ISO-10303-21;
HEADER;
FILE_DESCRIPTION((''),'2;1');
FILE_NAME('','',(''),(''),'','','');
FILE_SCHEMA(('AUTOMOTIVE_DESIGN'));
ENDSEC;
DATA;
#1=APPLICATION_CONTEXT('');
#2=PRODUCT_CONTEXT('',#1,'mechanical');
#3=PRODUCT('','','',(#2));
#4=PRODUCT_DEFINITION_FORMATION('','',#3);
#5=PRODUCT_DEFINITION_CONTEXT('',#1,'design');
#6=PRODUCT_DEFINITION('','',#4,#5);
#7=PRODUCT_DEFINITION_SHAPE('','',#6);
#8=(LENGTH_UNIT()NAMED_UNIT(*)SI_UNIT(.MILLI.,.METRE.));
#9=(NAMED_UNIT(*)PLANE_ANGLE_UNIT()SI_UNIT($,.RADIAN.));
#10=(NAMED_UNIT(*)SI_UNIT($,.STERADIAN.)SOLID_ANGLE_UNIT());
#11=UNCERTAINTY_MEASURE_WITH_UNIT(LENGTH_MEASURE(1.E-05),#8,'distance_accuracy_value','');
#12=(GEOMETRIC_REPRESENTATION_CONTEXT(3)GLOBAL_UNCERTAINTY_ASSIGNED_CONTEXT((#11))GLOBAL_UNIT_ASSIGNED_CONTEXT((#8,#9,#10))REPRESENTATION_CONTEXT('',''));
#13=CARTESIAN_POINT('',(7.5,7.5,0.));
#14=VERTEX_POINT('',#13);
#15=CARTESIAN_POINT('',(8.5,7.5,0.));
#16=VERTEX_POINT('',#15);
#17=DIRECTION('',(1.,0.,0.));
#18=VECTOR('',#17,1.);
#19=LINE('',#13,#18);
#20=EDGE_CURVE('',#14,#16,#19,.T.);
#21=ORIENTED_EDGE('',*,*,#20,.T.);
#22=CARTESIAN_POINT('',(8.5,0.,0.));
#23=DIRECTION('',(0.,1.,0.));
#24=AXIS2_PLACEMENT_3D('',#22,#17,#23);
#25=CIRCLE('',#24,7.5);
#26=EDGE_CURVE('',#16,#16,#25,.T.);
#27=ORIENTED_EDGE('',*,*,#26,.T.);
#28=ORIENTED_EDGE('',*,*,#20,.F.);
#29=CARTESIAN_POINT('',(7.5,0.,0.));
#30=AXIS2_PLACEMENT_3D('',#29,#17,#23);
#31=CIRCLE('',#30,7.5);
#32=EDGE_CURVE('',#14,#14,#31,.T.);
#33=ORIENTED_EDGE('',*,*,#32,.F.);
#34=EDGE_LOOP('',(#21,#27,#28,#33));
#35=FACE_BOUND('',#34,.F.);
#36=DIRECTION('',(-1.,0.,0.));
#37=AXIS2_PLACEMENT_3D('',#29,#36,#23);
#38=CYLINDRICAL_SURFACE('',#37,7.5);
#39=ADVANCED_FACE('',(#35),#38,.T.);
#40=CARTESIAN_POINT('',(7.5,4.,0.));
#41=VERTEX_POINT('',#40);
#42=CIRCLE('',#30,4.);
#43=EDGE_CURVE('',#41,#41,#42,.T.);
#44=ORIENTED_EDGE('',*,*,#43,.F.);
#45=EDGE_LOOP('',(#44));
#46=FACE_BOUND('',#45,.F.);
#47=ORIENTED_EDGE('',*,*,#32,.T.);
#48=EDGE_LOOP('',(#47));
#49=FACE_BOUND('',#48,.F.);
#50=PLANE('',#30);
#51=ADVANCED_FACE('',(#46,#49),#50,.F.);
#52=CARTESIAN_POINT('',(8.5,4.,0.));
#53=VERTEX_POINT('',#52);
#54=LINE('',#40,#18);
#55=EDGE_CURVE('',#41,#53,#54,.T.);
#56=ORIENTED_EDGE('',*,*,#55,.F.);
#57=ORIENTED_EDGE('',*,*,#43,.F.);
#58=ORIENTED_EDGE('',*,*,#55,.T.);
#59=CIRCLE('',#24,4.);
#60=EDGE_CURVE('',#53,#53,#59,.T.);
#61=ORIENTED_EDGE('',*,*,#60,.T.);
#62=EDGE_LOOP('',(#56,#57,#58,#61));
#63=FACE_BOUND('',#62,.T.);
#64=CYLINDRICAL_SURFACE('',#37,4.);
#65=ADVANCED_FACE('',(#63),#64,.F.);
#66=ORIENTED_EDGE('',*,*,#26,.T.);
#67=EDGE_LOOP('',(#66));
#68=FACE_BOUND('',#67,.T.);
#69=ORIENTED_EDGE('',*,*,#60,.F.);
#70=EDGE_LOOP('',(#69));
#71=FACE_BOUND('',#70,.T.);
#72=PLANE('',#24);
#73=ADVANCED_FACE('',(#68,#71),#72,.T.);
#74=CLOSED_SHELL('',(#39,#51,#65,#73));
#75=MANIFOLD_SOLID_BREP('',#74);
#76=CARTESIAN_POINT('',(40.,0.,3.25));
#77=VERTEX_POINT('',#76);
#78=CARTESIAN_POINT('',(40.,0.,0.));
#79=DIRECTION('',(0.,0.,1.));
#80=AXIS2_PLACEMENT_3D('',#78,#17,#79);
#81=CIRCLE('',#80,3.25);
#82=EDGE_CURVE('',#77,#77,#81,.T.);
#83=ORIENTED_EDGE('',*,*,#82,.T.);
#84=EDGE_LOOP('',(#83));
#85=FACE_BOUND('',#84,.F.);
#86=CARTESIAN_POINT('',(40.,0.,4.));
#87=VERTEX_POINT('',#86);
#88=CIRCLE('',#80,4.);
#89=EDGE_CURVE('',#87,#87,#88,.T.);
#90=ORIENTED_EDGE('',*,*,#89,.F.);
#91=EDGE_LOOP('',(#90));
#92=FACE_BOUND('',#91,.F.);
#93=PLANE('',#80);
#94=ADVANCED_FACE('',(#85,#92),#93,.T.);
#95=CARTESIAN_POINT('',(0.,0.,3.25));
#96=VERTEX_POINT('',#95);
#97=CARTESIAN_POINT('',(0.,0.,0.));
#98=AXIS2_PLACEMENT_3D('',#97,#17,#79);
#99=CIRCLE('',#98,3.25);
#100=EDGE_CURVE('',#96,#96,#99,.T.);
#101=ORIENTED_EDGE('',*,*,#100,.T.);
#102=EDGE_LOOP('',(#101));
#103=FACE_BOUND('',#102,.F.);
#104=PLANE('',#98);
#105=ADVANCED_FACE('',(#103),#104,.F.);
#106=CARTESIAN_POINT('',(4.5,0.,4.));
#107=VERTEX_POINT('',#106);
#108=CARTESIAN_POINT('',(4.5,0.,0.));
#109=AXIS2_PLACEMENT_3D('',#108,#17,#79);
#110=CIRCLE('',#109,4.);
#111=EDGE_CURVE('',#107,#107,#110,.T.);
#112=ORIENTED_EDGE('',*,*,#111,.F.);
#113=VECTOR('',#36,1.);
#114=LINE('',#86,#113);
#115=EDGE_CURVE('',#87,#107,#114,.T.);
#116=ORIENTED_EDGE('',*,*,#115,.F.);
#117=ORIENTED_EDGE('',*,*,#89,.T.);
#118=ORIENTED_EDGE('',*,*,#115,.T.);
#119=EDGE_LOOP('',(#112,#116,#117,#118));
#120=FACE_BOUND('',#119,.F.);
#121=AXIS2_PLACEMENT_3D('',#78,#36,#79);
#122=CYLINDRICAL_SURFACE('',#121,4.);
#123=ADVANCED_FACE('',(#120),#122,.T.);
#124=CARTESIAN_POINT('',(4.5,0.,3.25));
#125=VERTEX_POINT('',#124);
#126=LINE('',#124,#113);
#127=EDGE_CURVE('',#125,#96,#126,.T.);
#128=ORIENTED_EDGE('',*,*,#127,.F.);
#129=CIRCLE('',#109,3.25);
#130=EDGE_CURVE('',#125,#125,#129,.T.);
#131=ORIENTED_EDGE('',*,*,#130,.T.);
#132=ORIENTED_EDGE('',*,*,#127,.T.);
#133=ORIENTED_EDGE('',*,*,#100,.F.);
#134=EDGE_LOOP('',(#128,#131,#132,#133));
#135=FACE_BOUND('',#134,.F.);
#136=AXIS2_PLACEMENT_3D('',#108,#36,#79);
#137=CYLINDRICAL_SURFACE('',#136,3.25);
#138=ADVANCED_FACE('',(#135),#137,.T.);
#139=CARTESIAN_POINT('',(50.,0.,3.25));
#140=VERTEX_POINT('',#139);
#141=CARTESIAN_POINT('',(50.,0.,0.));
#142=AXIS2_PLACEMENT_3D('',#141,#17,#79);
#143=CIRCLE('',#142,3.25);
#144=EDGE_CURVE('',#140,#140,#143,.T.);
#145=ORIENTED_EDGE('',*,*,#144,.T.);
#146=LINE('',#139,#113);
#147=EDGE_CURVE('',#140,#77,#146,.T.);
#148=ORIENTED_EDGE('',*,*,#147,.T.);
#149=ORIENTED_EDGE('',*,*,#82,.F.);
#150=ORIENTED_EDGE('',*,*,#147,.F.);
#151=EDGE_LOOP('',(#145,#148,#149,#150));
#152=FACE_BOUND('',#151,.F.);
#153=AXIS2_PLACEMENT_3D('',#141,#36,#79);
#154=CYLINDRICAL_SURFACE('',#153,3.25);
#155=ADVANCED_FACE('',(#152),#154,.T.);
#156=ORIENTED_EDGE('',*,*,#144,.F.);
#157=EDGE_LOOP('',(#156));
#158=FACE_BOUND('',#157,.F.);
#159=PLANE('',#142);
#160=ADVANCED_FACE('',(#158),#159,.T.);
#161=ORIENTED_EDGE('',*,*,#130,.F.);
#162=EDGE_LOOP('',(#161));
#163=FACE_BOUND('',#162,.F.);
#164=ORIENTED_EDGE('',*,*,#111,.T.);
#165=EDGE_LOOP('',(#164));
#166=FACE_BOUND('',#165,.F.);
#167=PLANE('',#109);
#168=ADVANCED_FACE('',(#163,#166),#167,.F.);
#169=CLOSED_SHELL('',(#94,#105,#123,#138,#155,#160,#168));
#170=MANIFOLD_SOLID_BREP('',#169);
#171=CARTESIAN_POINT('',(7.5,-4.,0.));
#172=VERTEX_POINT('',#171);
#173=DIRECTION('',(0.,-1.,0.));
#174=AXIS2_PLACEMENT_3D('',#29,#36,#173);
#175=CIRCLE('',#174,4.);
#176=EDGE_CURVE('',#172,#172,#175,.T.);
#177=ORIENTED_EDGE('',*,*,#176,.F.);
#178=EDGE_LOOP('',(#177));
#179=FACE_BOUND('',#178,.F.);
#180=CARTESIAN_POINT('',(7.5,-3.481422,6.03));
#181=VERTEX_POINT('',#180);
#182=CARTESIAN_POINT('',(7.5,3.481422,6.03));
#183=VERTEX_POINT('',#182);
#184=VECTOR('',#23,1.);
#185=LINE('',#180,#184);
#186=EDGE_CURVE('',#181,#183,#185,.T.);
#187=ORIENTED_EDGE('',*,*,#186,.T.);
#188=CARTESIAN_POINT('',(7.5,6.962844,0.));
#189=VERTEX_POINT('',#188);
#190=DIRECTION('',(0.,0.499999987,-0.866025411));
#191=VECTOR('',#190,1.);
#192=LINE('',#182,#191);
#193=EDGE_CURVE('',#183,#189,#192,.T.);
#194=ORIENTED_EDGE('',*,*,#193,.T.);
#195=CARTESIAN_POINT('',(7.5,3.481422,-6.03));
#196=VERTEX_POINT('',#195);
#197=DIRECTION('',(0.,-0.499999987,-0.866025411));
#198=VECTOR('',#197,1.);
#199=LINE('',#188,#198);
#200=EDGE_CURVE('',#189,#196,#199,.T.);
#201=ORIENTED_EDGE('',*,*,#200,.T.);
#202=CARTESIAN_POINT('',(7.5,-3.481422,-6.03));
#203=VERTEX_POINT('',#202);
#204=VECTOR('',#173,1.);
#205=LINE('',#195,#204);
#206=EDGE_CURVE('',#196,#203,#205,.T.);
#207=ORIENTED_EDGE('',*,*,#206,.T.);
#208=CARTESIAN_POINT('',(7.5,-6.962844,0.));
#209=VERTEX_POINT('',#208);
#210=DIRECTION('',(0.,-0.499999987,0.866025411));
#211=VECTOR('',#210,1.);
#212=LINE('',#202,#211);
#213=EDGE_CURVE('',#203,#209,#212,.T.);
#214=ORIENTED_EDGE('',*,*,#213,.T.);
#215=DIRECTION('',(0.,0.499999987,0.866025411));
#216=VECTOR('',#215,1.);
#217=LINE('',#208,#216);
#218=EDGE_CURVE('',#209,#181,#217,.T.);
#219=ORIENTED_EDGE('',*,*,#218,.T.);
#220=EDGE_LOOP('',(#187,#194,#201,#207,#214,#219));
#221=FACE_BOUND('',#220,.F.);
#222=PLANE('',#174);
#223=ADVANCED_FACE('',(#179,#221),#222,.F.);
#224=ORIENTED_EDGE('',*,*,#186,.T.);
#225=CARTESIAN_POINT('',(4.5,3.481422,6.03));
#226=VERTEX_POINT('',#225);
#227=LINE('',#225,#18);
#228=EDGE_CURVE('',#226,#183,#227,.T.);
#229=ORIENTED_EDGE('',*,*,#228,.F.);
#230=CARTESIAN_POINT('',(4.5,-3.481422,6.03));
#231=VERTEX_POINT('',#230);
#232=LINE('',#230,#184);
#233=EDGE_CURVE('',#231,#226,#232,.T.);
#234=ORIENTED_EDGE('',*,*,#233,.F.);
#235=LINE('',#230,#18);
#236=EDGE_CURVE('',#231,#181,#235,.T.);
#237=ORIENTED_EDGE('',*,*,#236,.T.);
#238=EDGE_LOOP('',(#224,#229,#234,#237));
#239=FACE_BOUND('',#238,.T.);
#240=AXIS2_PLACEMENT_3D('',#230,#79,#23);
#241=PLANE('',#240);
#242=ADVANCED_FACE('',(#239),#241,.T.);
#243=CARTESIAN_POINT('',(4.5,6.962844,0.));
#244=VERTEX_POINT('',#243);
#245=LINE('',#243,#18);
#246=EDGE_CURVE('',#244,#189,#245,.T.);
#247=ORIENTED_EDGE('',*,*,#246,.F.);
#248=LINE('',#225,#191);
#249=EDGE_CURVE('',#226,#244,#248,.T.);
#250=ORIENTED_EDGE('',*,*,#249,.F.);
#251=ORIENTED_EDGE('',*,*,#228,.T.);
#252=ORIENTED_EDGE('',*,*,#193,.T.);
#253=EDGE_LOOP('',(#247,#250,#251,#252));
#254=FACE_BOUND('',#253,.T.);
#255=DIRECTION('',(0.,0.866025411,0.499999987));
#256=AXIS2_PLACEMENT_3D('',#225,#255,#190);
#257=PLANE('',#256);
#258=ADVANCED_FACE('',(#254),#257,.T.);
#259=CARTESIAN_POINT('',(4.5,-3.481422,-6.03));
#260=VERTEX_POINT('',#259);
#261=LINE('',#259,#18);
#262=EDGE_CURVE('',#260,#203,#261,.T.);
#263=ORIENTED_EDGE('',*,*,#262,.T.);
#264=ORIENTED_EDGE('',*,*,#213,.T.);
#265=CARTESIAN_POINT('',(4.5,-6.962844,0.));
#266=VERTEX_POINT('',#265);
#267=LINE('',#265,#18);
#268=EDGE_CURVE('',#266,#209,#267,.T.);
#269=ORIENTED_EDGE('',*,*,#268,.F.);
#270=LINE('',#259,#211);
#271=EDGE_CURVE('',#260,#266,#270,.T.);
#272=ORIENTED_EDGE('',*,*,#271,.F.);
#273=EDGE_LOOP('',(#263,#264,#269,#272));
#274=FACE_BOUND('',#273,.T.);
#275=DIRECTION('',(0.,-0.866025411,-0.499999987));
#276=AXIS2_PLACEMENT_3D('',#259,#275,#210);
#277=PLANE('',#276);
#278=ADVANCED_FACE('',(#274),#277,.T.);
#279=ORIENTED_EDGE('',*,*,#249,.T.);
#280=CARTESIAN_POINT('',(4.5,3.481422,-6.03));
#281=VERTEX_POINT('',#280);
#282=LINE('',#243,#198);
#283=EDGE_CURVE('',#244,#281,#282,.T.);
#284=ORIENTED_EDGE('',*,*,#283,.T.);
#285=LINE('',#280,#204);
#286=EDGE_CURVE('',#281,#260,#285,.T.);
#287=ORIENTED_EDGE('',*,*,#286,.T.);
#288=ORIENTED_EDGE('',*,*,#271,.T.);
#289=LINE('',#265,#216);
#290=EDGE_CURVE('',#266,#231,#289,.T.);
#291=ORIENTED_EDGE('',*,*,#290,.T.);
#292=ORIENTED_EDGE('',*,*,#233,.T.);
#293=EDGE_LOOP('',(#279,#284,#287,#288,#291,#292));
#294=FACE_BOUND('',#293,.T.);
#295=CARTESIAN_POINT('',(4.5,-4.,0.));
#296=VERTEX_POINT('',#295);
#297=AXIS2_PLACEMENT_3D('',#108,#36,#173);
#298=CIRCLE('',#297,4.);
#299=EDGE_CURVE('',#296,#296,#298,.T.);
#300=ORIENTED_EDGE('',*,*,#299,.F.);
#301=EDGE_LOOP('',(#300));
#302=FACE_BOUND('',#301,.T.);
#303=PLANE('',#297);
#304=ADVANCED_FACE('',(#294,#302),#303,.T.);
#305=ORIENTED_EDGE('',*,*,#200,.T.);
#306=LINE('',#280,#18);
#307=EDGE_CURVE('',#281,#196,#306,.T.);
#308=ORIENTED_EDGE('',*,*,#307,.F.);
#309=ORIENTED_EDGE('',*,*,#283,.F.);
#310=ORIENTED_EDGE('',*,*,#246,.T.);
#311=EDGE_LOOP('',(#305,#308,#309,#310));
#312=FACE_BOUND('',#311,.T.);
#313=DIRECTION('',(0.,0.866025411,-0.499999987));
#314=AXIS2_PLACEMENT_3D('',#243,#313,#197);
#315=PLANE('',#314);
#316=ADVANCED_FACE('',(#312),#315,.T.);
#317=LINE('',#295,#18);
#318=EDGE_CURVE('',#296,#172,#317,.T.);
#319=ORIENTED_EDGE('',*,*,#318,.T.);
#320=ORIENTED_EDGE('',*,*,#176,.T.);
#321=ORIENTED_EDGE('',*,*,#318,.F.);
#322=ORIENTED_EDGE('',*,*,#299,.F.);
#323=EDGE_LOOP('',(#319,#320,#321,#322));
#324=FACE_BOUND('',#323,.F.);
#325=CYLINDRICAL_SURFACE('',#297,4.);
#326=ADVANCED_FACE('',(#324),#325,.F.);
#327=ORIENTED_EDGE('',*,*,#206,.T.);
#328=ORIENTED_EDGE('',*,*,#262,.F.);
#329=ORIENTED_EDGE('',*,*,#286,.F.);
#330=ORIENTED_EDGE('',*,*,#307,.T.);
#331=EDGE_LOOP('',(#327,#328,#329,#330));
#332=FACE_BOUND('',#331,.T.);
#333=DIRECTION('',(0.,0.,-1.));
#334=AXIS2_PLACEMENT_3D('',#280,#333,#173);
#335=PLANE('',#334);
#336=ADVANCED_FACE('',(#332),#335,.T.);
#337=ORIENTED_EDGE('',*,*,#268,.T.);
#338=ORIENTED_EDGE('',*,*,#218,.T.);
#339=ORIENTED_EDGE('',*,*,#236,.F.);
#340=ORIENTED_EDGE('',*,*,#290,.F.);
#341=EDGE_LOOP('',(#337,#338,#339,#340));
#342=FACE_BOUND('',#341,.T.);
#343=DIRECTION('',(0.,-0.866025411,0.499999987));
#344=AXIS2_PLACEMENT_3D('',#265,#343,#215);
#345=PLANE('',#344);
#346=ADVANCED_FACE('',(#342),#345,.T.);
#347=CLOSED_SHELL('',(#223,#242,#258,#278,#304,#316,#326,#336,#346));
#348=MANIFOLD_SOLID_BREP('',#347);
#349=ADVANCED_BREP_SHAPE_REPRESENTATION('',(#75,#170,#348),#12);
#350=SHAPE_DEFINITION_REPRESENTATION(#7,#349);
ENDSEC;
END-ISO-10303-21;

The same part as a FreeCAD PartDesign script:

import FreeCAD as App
import Part
import Sketcher
from FreeCAD import Vector
Q = App.Units.Quantity

doc = App.newDocument("Part")
body = doc.addObject("PartDesign::Body", "Body")

# Sketch on XZ plane
sketch1 = body.newObject("Sketcher::SketchObject", "Sketch")
sketch1.AttachmentSupport = (doc.getObject("XZ_Plane"), [""])
sketch1.MapMode = "FlatFace"
sketch1.addGeometry([
    Part.LineSegment(Vector(0, 3.2, 0), Vector(0, 0, 0)),  # 0
    Part.LineSegment(Vector(0, 0, 0), Vector(50, 0, 0)),  # 1
    Part.LineSegment(Vector(50, 0, 0), Vector(50, 3.2, 0)),  # 2
    Part.LineSegment(Vector(50, 3.2, 0), Vector(40, 3.2, 0)),  # 3
    Part.LineSegment(Vector(40, 3.2, 0), Vector(40, 4, 0)),  # 4
    Part.LineSegment(Vector(40, 4, 0), Vector(4.5, 4, 0)),  # 5
    Part.LineSegment(Vector(4.5, 4, 0), Vector(4.5, 3.2, 0)),  # 6
    Part.LineSegment(Vector(4.5, 3.2, 0), Vector(0, 3.2, 0)),  # 7
], False)
sketch1.addConstraint([
    Sketcher.Constraint("Coincident", 0, 2, 1, 1),
    Sketcher.Constraint("Coincident", 1, 2, 2, 1),
    Sketcher.Constraint("Coincident", 2, 2, 3, 1),
    Sketcher.Constraint("Coincident", 3, 2, 4, 1),
    Sketcher.Constraint("Coincident", 4, 2, 5, 1),
    Sketcher.Constraint("Coincident", 5, 2, 6, 1),
    Sketcher.Constraint("Coincident", 6, 2, 7, 1),
    Sketcher.Constraint("Coincident", 7, 2, 0, 1),
    Sketcher.Constraint("Vertical", 0),
    Sketcher.Constraint("Horizontal", 1),
    Sketcher.Constraint("Vertical", 2),
    Sketcher.Constraint("Horizontal", 3),
    Sketcher.Constraint("Vertical", 4),
    Sketcher.Constraint("Horizontal", 5),
    Sketcher.Constraint("Vertical", 6),
    Sketcher.Constraint("Horizontal", 7),
    Sketcher.Constraint("Coincident", 0, 2, -1, 1),
    Sketcher.Constraint("Horizontal", 3, 2, 6, 2),
    Sketcher.Constraint("DistanceX", 1, 1, 1, 2, 50.0),
    Sketcher.Constraint("DistanceX", 3, 2, 3, 1, 10.0),
    Sketcher.Constraint("DistanceX", 5, 2, 5, 1, 35.5),
    Sketcher.Constraint("DistanceY", -1, 1, 4, 2, 4.0),
    Sketcher.Constraint("DistanceY", 0, 2, 0, 1, 3.25),
])
revolution = body.newObject("PartDesign::Revolution", "Revolution")
revolution.Profile = sketch1
revolution.ReferenceAxis = (sketch1, ["H_Axis"])
revolution.Angle = 360
body2 = doc.addObject("PartDesign::Body", "Body001")

# Sketch on YZ plane
sketch2 = body2.newObject("Sketcher::SketchObject", "Sketch001")
sketch2.AttachmentSupport = (doc.getObject("YZ_Plane001"), [""])
sketch2.MapMode = "FlatFace"
sketch2.AttachmentOffset = App.Placement(Vector(0, 0, 4.5), App.Rotation())
sketch2.addGeometry([
    Part.LineSegment(Vector(-3.5, 6, 0), Vector(3.5, 6, 0)),  # 0
    Part.LineSegment(Vector(3.5, 6, 0), Vector(7, 0, 0)),  # 1
    Part.LineSegment(Vector(7, 0, 0), Vector(3.5, -6, 0)),  # 2
    Part.LineSegment(Vector(3.5, -6, 0), Vector(-3.5, -6, 0)),  # 3
    Part.LineSegment(Vector(-3.5, -6, 0), Vector(-7, 0, 0)),  # 4
    Part.LineSegment(Vector(-7, 0, 0), Vector(-3.5, 6, 0)),  # 5
    Part.Circle(Vector(0, 0, 0), Vector(0, 0, 1), 4),  # 6
], False)
sketch2.addConstraint([
    Sketcher.Constraint("Coincident", 0, 2, 1, 1),
    Sketcher.Constraint("Coincident", 1, 2, 2, 1),
    Sketcher.Constraint("Coincident", 2, 2, 3, 1),
    Sketcher.Constraint("Coincident", 3, 2, 4, 1),
    Sketcher.Constraint("Coincident", 4, 2, 5, 1),
    Sketcher.Constraint("Coincident", 5, 2, 0, 1),
    Sketcher.Constraint("Horizontal", 0),
    Sketcher.Constraint("Horizontal", 3),
    Sketcher.Constraint("Coincident", 6, 3, -1, 1),
    Sketcher.Constraint("Symmetric", 0, 2, 3, 2, -1, 1),
    Sketcher.Constraint("Symmetric", 1, 2, 4, 2, -1, 1),
    Sketcher.Constraint("PointOnObject", 1, 2, -1),
    Sketcher.Constraint("Parallel", 2, 5),
    Sketcher.Constraint("Vertical", 0, 2, 2, 2),
    Sketcher.Constraint("Diameter", 6, 8.0),
    Sketcher.Constraint("Angle", 1, Q("-60.000001 deg")),
    Sketcher.Constraint("DistanceY", -1, 1, 0, 2, 6.03),
    Sketcher.Constraint("DistanceX", 0, 1, 0, 2, 6.962844),
])
pad1 = body2.newObject("PartDesign::Pad", "Pad")
pad1.Profile = sketch2
pad1.Length = 3
body3 = doc.addObject("PartDesign::Body", "Body002")

# Sketch on YZ plane
sketch3 = body3.newObject("Sketcher::SketchObject", "Sketch002")
sketch3.AttachmentSupport = (doc.getObject("YZ_Plane002"), [""])
sketch3.MapMode = "FlatFace"
sketch3.AttachmentOffset = App.Placement(Vector(0, 0, 7.5), App.Rotation())
sketch3.addGeometry([
    Part.Circle(Vector(0, 0, 0), Vector(0, 0, 1), 7.5),
    Part.Circle(Vector(0, 0, 0), Vector(0, 0, 1), 4),
], False)
sketch3.addConstraint([
    Sketcher.Constraint("Coincident", 0, 3, -1, 1),
    Sketcher.Constraint("Coincident", 1, 3, -1, 1),
    Sketcher.Constraint("Diameter", 0, 15.0),
    Sketcher.Constraint("Diameter", 1, 8.0),
])
pad2 = body3.newObject("PartDesign::Pad", "Pad001")
pad2.Profile = sketch3
pad2.Length = 1

doc.recompute()
